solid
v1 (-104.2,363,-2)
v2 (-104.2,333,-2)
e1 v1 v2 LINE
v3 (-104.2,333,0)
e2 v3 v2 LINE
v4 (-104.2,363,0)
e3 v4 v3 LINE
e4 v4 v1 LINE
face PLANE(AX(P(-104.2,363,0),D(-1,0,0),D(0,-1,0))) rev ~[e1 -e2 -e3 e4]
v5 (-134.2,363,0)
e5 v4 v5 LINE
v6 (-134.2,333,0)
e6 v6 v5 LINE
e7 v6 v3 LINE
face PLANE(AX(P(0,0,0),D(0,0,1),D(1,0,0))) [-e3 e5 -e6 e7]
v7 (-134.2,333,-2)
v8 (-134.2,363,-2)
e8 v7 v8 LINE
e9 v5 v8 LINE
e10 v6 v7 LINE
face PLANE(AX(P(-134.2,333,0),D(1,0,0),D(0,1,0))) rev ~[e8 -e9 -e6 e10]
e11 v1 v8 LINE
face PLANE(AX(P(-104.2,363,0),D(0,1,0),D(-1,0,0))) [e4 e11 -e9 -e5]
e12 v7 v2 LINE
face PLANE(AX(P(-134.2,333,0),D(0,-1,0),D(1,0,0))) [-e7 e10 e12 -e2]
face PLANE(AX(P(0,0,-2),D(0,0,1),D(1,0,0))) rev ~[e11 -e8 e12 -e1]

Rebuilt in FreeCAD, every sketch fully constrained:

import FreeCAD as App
import Part
import Sketcher

doc = App.newDocument("Part")
params = doc.addObject("Spreadsheet::Sheet", "Params")
for row, (alias, value) in enumerate([
    ("sketch1_width", "30 mm"),
    ("pad1_length", "2 mm"),
], start=1):
    params.set(f"A{row}", alias)
    params.set(f"B{row}", "=" + value)
    params.setAlias(f"B{row}", alias)

body = doc.addObject("PartDesign::Body", "Body")

# Sketch on XY plane
sketch1 = body.newObject("Sketcher::SketchObject", "Sketch")
sketch1.AttachmentSupport = (doc.getObject("XY_Plane"), [""])
sketch1.MapMode = "FlatFace"
sketch1.addGeometry([
    Part.LineSegment(App.Vector(-134, 363, 0), App.Vector(-134, 333, 0)),
    Part.LineSegment(App.Vector(-134, 333, 0), App.Vector(-104, 333, 0)),
    Part.LineSegment(App.Vector(-104, 333, 0), App.Vector(-104, 363, 0)),
    Part.LineSegment(App.Vector(-104, 363, 0), App.Vector(-134, 363, 0)),
], False)
sketch1.addConstraint([
    Sketcher.Constraint("Coincident", 0, 2, 1, 1),
    Sketcher.Constraint("Coincident", 1, 2, 2, 1),
    Sketcher.Constraint("Coincident", 2, 2, 3, 1),
    Sketcher.Constraint("Coincident", 3, 2, 0, 1),
    Sketcher.Constraint("Vertical", 0),
    Sketcher.Constraint("Horizontal", 1),
    Sketcher.Constraint("Vertical", 2),
    Sketcher.Constraint("Horizontal", 3),
    Sketcher.Constraint("Equal", 3, 0),
    Sketcher.Constraint("DistanceX", 1, 1, 1, 2, 30.0),
    Sketcher.Constraint("DistanceY", -1, 1, 0, 2, 333.0),
    Sketcher.Constraint("DistanceX", 0, 2, -1, 1, 134.2),
])
sketch1.setExpression("Constraints[9]", "Params.sketch1_width")
pad1 = body.newObject("PartDesign::Pad", "Pad")
pad1.Profile = sketch1
pad1.setExpression("Length", "Params.pad1_length")
pad1.Reversed = True

doc.recompute()
